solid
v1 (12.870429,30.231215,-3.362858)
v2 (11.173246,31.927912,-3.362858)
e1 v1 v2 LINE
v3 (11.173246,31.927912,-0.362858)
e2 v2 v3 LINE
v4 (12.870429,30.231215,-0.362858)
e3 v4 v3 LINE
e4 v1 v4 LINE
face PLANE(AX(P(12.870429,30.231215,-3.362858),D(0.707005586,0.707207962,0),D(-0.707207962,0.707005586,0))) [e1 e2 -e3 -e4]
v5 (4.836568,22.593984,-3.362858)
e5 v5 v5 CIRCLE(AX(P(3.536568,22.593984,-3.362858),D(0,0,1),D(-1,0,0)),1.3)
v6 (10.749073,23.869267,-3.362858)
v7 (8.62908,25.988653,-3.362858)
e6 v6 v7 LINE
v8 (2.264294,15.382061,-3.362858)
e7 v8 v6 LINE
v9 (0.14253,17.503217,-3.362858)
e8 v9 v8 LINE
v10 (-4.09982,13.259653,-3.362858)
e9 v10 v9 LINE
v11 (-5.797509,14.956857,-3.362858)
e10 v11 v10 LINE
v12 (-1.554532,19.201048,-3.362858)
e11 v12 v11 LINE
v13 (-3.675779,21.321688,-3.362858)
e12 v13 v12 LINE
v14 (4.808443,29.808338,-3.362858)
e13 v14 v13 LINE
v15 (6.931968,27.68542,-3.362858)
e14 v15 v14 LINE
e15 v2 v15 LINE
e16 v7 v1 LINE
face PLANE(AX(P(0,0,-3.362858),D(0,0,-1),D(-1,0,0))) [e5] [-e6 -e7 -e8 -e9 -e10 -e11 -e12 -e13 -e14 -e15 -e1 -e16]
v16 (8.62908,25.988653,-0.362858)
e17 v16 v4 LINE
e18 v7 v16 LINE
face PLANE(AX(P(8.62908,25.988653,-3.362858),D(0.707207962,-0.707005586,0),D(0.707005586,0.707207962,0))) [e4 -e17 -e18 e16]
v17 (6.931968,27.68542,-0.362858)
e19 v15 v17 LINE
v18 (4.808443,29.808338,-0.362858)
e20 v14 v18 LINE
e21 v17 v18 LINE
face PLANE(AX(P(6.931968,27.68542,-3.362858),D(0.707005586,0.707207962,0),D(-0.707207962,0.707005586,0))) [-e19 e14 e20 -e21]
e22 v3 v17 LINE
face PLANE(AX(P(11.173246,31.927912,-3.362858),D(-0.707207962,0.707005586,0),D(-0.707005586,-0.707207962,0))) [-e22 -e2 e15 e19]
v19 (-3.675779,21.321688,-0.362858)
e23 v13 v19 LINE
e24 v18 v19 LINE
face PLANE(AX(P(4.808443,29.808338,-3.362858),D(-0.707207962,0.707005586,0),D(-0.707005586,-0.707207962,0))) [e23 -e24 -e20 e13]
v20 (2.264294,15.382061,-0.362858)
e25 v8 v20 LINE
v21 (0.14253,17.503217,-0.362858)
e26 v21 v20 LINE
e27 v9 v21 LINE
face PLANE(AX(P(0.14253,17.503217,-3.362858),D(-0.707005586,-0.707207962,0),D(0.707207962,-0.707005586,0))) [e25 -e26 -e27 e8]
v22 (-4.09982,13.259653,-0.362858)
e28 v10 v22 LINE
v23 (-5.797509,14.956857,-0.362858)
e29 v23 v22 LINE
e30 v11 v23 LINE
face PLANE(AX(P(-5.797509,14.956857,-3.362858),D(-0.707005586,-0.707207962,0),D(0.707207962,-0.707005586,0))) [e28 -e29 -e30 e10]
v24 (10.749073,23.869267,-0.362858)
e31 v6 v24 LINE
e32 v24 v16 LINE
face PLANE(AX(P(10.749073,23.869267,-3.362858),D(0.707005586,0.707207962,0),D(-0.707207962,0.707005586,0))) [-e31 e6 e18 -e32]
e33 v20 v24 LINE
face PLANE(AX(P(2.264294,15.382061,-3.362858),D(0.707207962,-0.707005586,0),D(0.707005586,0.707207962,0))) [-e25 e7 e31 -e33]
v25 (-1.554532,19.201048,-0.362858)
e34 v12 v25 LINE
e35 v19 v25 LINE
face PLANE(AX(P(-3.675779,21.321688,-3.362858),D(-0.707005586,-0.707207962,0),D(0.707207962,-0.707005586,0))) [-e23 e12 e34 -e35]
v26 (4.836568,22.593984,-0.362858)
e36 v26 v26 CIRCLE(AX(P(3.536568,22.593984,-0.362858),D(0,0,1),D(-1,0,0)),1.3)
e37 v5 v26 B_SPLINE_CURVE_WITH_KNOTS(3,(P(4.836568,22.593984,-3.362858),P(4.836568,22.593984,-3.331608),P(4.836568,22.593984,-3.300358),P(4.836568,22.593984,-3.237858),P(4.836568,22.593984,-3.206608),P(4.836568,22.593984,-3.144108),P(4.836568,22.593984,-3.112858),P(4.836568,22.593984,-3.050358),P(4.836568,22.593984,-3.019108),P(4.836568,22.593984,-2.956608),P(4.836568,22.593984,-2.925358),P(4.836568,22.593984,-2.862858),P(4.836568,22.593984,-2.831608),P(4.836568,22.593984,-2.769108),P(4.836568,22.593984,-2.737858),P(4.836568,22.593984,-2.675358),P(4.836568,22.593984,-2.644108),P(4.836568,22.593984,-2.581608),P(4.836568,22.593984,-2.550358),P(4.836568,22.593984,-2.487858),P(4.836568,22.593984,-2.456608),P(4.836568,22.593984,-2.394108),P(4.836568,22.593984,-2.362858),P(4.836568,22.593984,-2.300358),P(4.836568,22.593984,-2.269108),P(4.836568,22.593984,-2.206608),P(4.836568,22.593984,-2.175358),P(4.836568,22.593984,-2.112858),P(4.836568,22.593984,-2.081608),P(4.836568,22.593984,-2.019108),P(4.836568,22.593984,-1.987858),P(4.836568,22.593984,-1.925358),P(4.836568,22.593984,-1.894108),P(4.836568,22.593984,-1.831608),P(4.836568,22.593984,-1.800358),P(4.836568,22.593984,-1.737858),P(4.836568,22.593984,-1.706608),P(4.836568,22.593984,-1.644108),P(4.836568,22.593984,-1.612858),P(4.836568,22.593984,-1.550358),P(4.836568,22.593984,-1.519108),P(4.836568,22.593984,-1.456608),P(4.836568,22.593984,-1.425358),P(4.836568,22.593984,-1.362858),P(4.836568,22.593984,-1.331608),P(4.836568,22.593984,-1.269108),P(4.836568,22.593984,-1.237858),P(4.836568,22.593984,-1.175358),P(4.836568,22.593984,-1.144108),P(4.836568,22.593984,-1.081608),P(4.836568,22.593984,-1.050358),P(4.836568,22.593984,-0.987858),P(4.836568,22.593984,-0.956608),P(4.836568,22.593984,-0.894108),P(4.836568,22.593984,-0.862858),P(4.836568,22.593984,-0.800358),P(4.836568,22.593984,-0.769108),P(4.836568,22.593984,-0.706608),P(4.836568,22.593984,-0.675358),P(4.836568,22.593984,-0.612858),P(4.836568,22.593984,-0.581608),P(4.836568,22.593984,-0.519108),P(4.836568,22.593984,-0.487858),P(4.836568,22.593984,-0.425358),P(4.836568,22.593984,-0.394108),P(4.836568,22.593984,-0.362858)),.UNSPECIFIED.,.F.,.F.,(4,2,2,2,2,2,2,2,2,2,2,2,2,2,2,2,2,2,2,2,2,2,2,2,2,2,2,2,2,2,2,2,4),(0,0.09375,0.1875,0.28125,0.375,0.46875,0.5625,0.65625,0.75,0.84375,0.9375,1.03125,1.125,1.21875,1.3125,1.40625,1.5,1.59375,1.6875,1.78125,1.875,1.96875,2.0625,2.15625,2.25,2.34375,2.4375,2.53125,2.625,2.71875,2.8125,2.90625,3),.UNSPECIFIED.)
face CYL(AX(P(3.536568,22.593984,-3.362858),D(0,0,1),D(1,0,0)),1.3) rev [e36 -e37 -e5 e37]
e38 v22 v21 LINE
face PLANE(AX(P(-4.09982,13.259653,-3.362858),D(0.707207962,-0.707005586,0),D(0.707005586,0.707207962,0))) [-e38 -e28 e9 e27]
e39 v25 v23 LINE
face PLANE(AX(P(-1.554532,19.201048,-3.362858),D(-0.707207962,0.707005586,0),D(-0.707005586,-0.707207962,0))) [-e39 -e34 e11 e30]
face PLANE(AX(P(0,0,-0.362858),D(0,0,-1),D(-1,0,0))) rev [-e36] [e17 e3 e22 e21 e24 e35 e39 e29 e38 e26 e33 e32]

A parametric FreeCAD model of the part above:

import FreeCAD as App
import Part
import Sketcher

V = App.Vector
Q = App.Units.Quantity

doc = App.newDocument("Part")
body = doc.addObject("PartDesign::Body", "Body")

sketch1 = doc.addObject("Sketcher::SketchObject", "Sketch")
body.addObject(sketch1)
sketch1.AttachmentSupport = (doc.XY_Plane, [""])
sketch1.MapMode = "FlatFace"
sketch1.AttachmentOffset = App.Placement(V(0, 0, -0.362858), App.Rotation())
sketch1.addGeometry([
    Part.LineSegment(V(6.931968, 27.68542, 0), V(4.808443, 29.808338, 0)),
    Part.LineSegment(V(4.808443, 29.808338, 0), V(-3.675779, 21.321688, 0)),
    Part.LineSegment(V(-3.675779, 21.321688, 0), V(-1.554532, 19.201048, 0)),
    Part.LineSegment(V(-1.554532, 19.201048, 0), V(-5.797509, 14.956857, 0)),
    Part.LineSegment(V(-5.797509, 14.956857, 0), V(-4.09982, 13.259653, 0)),
    Part.LineSegment(V(-4.09982, 13.259653, 0), V(0.14253, 17.503217, 0)),
    Part.LineSegment(V(0.14253, 17.503217, 0), V(2.264294, 15.382061, 0)),
    Part.LineSegment(V(2.264294, 15.382061, 0), V(10.749073, 23.869267, 0)),
    Part.LineSegment(V(10.749073, 23.869267, 0), V(8.62908, 25.988653, 0)),
    Part.LineSegment(V(8.62908, 25.988653, 0), V(12.870429, 30.231215, 0)),
    Part.LineSegment(V(12.870429, 30.231215, 0), V(11.173246, 31.927912, 0)),
    Part.LineSegment(V(11.173246, 31.927912, 0), V(6.931968, 27.68542, 0)),
    Part.Circle(V(3.536568, 22.593984, 0), V(0, 0, 1), 1.3),
], False)
sketch1.addConstraint([
    Sketcher.Constraint("Coincident", 0, 2, 1, 1),
    Sketcher.Constraint("Coincident", 1, 2, 2, 1),
    Sketcher.Constraint("Coincident", 2, 2, 3, 1),
    Sketcher.Constraint("Coincident", 3, 2, 4, 1),
    Sketcher.Constraint("Coincident", 4, 2, 5, 1),
    Sketcher.Constraint("Coincident", 5, 2, 6, 1),
    Sketcher.Constraint("Coincident", 6, 2, 7, 1),
    Sketcher.Constraint("Coincident", 7, 2, 8, 1),
    Sketcher.Constraint("Coincident", 8, 2, 9, 1),
    Sketcher.Constraint("Coincident", 9, 2, 10, 1),
    Sketcher.Constraint("Coincident", 10, 2, 11, 1),
    Sketcher.Constraint("Coincident", 11, 2, 0, 1),
    Sketcher.Constraint("Perpendicular", 0, 1),
    Sketcher.Constraint("Perpendicular", 1, 2),
    Sketcher.Constraint("Perpendicular", 2, 3),
    Sketcher.Constraint("Perpendicular", 3, 4),
    Sketcher.Constraint("Perpendicular", 4, 5),
    Sketcher.Constraint("Perpendicular", 5, 6),
    Sketcher.Constraint("Perpendicular", 6, 7),
    Sketcher.Constraint("Perpendicular", 7, 8),
    Sketcher.Constraint("Perpendicular", 8, 9),
    Sketcher.Constraint("Perpendicular", 9, 10),
    Sketcher.Constraint("Perpendicular", 10, 11),
    Sketcher.Constraint("Diameter", 12, Q("2.6 mm")),
    Sketcher.Constraint("DistanceY", 5, 2, 9, 2, Q("12.727998 mm")),
    Sketcher.Constraint("Distance", 6, Q("3.000198 mm")),
    Sketcher.Constraint("DistanceX", 2, 2, 12, 3, Q("5.0911 mm")),
    Sketcher.Constraint("DistanceX", 5, 2, 9, 2, Q("12.727898 mm")),
    Sketcher.Constraint("DistanceX", 12, 3, 11, 2, Q("3.395401 mm")),
    Sketcher.Constraint("Distance", 0, Q("3.002689 mm")),
    Sketcher.Constraint("Distance", 1, Q("12.000219 mm")),
    Sketcher.Constraint("Distance", 9, Q("5.999031 mm")),
    Sketcher.Constraint("Distance", 11, Q("5.998931 mm")),
    Sketcher.Constraint("DistanceX", 1, 2, -1, 1, Q("3.675779 mm")),
    Sketcher.Constraint("DistanceY", -1, 1, 2, 2, Q("19.201048 mm")),
    Sketcher.Constraint("DistanceX", 3, 2, -1, 1, Q("5.797509 mm")),
    Sketcher.Constraint("DistanceX", 4, 2, -1, 1, Q("4.09982 mm")),
    Sketcher.Constraint("DistanceX", -1, 1, 5, 2, Q("0.14253 mm")),
    Sketcher.Constraint("DistanceY", 4, 2, 12, 3, Q("9.334331 mm")),
])
pad1 = doc.addObject("PartDesign::Pad", "Pad")
body.addObject(pad1)
pad1.Profile = sketch1
pad1.Length = 3
pad1.Reversed = True

doc.recompute()
